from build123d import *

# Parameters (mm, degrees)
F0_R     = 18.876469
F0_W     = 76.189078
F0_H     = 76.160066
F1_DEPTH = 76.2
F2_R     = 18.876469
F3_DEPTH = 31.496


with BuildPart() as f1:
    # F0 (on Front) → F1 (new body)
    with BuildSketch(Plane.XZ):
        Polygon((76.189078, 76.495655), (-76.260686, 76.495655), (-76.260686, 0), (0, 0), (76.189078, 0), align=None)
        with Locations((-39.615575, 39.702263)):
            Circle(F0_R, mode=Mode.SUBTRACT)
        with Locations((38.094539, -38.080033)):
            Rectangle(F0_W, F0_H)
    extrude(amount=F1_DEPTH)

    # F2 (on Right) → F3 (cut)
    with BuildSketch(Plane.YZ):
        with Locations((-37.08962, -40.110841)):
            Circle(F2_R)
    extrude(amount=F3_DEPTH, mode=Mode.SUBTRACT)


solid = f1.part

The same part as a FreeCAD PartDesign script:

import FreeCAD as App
import Part
import Sketcher

V = App.Vector


def add_polygon(sketch, points):
    """Adds a closed chain of lines whose ends are joined by coincident constraints."""
    first, n = sketch.GeometryCount, len(points)
    for a, b in zip(points, points[1:] + points[:1]):
        sketch.addGeometry(Part.LineSegment(App.Vector(*a, 0), App.Vector(*b, 0)), False)
    for i in range(n):
        sketch.addConstraint(Sketcher.Constraint("Coincident", first + i, 2, first + (i + 1) % n, 1))

doc = App.newDocument("Part")
params = doc.addObject("Spreadsheet::Sheet", "Params")
for row, (alias, value) in enumerate([
    ("pad1_length", "3 in"),
    ("pocket1_length", "1.24 in"),
], start=1):
    params.set(f"A{row}", alias)
    params.set(f"B{row}", "=" + value)
    params.setAlias(f"B{row}", alias)

body = doc.addObject("PartDesign::Body", "Body")

sketch1 = body.newObject("Sketcher::SketchObject", "Sketch")
sketch1.AttachmentSupport = (doc.getObject("XZ_Plane"), [""])
sketch1.MapMode = "FlatFace"
add_polygon(sketch1, [(76, 76), (-76, 76), (-76, 0), (0, 0), (0, -76), (76, -76)])
sketch1.addGeometry(Part.Circle(V(-40, 40, 0), V(0, 0, 1), 19), False)
sketch1.addConstraint(Sketcher.Constraint("Horizontal", 0))
sketch1.addConstraint(Sketcher.Constraint("Vertical", 1))
sketch1.addConstraint(Sketcher.Constraint("Horizontal", 2))
sketch1.addConstraint(Sketcher.Constraint("Vertical", 3))
sketch1.addConstraint(Sketcher.Constraint("Horizontal", 4))
sketch1.addConstraint(Sketcher.Constraint("Vertical", 5))
sketch1.addConstraint(Sketcher.Constraint("Coincident", 2, 2, -1, 1))
sketch1.addConstraint(Sketcher.Constraint("Diameter", 6, 37.752938))
sketch1.addConstraint(Sketcher.Constraint("DistanceY", 5, 1, 5, 2, 152.655721))
sketch1.addConstraint(Sketcher.Constraint("DistanceX", 0, 2, 0, 1, 152.449764))
sketch1.addConstraint(Sketcher.Constraint("DistanceX", 2, 1, 2, 2, 76.260686))
sketch1.addConstraint(Sketcher.Constraint("DistanceY", 1, 2, 1, 1, 76.495655))
sketch1.addConstraint(Sketcher.Constraint("DistanceX", 0, 2, 6, 3, 36.645111))
sketch1.addConstraint(Sketcher.Constraint("DistanceY", 6, 3, 0, 2, 36.793392))
pad1 = body.newObject("PartDesign::Pad", "Pad")
pad1.Profile = sketch1
pad1.setExpression("Length", "Params.pad1_length")

sketch2 = body.newObject("Sketcher::SketchObject", "Sketch001")
sketch2.AttachmentSupport = (doc.getObject("YZ_Plane"), [""])
sketch2.MapMode = "FlatFace"
sketch2.addGeometry(Part.Circle(V(-37, -40, 0), V(0, 0, 1), 19), False)
sketch2.addConstraint(Sketcher.Constraint("Diameter", 0, 37.752938))
sketch2.addConstraint(Sketcher.Constraint("DistanceX", 0, 3, -1, 1, 37.08962))
sketch2.addConstraint(Sketcher.Constraint("DistanceY", 0, 3, -1, 1, 40.110841))
pocket1 = body.newObject("PartDesign::Pocket", "Pocket")
pocket1.Profile = sketch2
pocket1.setExpression("Length", "Params.pocket1_length")
pocket1.Reversed = True

doc.recompute()
